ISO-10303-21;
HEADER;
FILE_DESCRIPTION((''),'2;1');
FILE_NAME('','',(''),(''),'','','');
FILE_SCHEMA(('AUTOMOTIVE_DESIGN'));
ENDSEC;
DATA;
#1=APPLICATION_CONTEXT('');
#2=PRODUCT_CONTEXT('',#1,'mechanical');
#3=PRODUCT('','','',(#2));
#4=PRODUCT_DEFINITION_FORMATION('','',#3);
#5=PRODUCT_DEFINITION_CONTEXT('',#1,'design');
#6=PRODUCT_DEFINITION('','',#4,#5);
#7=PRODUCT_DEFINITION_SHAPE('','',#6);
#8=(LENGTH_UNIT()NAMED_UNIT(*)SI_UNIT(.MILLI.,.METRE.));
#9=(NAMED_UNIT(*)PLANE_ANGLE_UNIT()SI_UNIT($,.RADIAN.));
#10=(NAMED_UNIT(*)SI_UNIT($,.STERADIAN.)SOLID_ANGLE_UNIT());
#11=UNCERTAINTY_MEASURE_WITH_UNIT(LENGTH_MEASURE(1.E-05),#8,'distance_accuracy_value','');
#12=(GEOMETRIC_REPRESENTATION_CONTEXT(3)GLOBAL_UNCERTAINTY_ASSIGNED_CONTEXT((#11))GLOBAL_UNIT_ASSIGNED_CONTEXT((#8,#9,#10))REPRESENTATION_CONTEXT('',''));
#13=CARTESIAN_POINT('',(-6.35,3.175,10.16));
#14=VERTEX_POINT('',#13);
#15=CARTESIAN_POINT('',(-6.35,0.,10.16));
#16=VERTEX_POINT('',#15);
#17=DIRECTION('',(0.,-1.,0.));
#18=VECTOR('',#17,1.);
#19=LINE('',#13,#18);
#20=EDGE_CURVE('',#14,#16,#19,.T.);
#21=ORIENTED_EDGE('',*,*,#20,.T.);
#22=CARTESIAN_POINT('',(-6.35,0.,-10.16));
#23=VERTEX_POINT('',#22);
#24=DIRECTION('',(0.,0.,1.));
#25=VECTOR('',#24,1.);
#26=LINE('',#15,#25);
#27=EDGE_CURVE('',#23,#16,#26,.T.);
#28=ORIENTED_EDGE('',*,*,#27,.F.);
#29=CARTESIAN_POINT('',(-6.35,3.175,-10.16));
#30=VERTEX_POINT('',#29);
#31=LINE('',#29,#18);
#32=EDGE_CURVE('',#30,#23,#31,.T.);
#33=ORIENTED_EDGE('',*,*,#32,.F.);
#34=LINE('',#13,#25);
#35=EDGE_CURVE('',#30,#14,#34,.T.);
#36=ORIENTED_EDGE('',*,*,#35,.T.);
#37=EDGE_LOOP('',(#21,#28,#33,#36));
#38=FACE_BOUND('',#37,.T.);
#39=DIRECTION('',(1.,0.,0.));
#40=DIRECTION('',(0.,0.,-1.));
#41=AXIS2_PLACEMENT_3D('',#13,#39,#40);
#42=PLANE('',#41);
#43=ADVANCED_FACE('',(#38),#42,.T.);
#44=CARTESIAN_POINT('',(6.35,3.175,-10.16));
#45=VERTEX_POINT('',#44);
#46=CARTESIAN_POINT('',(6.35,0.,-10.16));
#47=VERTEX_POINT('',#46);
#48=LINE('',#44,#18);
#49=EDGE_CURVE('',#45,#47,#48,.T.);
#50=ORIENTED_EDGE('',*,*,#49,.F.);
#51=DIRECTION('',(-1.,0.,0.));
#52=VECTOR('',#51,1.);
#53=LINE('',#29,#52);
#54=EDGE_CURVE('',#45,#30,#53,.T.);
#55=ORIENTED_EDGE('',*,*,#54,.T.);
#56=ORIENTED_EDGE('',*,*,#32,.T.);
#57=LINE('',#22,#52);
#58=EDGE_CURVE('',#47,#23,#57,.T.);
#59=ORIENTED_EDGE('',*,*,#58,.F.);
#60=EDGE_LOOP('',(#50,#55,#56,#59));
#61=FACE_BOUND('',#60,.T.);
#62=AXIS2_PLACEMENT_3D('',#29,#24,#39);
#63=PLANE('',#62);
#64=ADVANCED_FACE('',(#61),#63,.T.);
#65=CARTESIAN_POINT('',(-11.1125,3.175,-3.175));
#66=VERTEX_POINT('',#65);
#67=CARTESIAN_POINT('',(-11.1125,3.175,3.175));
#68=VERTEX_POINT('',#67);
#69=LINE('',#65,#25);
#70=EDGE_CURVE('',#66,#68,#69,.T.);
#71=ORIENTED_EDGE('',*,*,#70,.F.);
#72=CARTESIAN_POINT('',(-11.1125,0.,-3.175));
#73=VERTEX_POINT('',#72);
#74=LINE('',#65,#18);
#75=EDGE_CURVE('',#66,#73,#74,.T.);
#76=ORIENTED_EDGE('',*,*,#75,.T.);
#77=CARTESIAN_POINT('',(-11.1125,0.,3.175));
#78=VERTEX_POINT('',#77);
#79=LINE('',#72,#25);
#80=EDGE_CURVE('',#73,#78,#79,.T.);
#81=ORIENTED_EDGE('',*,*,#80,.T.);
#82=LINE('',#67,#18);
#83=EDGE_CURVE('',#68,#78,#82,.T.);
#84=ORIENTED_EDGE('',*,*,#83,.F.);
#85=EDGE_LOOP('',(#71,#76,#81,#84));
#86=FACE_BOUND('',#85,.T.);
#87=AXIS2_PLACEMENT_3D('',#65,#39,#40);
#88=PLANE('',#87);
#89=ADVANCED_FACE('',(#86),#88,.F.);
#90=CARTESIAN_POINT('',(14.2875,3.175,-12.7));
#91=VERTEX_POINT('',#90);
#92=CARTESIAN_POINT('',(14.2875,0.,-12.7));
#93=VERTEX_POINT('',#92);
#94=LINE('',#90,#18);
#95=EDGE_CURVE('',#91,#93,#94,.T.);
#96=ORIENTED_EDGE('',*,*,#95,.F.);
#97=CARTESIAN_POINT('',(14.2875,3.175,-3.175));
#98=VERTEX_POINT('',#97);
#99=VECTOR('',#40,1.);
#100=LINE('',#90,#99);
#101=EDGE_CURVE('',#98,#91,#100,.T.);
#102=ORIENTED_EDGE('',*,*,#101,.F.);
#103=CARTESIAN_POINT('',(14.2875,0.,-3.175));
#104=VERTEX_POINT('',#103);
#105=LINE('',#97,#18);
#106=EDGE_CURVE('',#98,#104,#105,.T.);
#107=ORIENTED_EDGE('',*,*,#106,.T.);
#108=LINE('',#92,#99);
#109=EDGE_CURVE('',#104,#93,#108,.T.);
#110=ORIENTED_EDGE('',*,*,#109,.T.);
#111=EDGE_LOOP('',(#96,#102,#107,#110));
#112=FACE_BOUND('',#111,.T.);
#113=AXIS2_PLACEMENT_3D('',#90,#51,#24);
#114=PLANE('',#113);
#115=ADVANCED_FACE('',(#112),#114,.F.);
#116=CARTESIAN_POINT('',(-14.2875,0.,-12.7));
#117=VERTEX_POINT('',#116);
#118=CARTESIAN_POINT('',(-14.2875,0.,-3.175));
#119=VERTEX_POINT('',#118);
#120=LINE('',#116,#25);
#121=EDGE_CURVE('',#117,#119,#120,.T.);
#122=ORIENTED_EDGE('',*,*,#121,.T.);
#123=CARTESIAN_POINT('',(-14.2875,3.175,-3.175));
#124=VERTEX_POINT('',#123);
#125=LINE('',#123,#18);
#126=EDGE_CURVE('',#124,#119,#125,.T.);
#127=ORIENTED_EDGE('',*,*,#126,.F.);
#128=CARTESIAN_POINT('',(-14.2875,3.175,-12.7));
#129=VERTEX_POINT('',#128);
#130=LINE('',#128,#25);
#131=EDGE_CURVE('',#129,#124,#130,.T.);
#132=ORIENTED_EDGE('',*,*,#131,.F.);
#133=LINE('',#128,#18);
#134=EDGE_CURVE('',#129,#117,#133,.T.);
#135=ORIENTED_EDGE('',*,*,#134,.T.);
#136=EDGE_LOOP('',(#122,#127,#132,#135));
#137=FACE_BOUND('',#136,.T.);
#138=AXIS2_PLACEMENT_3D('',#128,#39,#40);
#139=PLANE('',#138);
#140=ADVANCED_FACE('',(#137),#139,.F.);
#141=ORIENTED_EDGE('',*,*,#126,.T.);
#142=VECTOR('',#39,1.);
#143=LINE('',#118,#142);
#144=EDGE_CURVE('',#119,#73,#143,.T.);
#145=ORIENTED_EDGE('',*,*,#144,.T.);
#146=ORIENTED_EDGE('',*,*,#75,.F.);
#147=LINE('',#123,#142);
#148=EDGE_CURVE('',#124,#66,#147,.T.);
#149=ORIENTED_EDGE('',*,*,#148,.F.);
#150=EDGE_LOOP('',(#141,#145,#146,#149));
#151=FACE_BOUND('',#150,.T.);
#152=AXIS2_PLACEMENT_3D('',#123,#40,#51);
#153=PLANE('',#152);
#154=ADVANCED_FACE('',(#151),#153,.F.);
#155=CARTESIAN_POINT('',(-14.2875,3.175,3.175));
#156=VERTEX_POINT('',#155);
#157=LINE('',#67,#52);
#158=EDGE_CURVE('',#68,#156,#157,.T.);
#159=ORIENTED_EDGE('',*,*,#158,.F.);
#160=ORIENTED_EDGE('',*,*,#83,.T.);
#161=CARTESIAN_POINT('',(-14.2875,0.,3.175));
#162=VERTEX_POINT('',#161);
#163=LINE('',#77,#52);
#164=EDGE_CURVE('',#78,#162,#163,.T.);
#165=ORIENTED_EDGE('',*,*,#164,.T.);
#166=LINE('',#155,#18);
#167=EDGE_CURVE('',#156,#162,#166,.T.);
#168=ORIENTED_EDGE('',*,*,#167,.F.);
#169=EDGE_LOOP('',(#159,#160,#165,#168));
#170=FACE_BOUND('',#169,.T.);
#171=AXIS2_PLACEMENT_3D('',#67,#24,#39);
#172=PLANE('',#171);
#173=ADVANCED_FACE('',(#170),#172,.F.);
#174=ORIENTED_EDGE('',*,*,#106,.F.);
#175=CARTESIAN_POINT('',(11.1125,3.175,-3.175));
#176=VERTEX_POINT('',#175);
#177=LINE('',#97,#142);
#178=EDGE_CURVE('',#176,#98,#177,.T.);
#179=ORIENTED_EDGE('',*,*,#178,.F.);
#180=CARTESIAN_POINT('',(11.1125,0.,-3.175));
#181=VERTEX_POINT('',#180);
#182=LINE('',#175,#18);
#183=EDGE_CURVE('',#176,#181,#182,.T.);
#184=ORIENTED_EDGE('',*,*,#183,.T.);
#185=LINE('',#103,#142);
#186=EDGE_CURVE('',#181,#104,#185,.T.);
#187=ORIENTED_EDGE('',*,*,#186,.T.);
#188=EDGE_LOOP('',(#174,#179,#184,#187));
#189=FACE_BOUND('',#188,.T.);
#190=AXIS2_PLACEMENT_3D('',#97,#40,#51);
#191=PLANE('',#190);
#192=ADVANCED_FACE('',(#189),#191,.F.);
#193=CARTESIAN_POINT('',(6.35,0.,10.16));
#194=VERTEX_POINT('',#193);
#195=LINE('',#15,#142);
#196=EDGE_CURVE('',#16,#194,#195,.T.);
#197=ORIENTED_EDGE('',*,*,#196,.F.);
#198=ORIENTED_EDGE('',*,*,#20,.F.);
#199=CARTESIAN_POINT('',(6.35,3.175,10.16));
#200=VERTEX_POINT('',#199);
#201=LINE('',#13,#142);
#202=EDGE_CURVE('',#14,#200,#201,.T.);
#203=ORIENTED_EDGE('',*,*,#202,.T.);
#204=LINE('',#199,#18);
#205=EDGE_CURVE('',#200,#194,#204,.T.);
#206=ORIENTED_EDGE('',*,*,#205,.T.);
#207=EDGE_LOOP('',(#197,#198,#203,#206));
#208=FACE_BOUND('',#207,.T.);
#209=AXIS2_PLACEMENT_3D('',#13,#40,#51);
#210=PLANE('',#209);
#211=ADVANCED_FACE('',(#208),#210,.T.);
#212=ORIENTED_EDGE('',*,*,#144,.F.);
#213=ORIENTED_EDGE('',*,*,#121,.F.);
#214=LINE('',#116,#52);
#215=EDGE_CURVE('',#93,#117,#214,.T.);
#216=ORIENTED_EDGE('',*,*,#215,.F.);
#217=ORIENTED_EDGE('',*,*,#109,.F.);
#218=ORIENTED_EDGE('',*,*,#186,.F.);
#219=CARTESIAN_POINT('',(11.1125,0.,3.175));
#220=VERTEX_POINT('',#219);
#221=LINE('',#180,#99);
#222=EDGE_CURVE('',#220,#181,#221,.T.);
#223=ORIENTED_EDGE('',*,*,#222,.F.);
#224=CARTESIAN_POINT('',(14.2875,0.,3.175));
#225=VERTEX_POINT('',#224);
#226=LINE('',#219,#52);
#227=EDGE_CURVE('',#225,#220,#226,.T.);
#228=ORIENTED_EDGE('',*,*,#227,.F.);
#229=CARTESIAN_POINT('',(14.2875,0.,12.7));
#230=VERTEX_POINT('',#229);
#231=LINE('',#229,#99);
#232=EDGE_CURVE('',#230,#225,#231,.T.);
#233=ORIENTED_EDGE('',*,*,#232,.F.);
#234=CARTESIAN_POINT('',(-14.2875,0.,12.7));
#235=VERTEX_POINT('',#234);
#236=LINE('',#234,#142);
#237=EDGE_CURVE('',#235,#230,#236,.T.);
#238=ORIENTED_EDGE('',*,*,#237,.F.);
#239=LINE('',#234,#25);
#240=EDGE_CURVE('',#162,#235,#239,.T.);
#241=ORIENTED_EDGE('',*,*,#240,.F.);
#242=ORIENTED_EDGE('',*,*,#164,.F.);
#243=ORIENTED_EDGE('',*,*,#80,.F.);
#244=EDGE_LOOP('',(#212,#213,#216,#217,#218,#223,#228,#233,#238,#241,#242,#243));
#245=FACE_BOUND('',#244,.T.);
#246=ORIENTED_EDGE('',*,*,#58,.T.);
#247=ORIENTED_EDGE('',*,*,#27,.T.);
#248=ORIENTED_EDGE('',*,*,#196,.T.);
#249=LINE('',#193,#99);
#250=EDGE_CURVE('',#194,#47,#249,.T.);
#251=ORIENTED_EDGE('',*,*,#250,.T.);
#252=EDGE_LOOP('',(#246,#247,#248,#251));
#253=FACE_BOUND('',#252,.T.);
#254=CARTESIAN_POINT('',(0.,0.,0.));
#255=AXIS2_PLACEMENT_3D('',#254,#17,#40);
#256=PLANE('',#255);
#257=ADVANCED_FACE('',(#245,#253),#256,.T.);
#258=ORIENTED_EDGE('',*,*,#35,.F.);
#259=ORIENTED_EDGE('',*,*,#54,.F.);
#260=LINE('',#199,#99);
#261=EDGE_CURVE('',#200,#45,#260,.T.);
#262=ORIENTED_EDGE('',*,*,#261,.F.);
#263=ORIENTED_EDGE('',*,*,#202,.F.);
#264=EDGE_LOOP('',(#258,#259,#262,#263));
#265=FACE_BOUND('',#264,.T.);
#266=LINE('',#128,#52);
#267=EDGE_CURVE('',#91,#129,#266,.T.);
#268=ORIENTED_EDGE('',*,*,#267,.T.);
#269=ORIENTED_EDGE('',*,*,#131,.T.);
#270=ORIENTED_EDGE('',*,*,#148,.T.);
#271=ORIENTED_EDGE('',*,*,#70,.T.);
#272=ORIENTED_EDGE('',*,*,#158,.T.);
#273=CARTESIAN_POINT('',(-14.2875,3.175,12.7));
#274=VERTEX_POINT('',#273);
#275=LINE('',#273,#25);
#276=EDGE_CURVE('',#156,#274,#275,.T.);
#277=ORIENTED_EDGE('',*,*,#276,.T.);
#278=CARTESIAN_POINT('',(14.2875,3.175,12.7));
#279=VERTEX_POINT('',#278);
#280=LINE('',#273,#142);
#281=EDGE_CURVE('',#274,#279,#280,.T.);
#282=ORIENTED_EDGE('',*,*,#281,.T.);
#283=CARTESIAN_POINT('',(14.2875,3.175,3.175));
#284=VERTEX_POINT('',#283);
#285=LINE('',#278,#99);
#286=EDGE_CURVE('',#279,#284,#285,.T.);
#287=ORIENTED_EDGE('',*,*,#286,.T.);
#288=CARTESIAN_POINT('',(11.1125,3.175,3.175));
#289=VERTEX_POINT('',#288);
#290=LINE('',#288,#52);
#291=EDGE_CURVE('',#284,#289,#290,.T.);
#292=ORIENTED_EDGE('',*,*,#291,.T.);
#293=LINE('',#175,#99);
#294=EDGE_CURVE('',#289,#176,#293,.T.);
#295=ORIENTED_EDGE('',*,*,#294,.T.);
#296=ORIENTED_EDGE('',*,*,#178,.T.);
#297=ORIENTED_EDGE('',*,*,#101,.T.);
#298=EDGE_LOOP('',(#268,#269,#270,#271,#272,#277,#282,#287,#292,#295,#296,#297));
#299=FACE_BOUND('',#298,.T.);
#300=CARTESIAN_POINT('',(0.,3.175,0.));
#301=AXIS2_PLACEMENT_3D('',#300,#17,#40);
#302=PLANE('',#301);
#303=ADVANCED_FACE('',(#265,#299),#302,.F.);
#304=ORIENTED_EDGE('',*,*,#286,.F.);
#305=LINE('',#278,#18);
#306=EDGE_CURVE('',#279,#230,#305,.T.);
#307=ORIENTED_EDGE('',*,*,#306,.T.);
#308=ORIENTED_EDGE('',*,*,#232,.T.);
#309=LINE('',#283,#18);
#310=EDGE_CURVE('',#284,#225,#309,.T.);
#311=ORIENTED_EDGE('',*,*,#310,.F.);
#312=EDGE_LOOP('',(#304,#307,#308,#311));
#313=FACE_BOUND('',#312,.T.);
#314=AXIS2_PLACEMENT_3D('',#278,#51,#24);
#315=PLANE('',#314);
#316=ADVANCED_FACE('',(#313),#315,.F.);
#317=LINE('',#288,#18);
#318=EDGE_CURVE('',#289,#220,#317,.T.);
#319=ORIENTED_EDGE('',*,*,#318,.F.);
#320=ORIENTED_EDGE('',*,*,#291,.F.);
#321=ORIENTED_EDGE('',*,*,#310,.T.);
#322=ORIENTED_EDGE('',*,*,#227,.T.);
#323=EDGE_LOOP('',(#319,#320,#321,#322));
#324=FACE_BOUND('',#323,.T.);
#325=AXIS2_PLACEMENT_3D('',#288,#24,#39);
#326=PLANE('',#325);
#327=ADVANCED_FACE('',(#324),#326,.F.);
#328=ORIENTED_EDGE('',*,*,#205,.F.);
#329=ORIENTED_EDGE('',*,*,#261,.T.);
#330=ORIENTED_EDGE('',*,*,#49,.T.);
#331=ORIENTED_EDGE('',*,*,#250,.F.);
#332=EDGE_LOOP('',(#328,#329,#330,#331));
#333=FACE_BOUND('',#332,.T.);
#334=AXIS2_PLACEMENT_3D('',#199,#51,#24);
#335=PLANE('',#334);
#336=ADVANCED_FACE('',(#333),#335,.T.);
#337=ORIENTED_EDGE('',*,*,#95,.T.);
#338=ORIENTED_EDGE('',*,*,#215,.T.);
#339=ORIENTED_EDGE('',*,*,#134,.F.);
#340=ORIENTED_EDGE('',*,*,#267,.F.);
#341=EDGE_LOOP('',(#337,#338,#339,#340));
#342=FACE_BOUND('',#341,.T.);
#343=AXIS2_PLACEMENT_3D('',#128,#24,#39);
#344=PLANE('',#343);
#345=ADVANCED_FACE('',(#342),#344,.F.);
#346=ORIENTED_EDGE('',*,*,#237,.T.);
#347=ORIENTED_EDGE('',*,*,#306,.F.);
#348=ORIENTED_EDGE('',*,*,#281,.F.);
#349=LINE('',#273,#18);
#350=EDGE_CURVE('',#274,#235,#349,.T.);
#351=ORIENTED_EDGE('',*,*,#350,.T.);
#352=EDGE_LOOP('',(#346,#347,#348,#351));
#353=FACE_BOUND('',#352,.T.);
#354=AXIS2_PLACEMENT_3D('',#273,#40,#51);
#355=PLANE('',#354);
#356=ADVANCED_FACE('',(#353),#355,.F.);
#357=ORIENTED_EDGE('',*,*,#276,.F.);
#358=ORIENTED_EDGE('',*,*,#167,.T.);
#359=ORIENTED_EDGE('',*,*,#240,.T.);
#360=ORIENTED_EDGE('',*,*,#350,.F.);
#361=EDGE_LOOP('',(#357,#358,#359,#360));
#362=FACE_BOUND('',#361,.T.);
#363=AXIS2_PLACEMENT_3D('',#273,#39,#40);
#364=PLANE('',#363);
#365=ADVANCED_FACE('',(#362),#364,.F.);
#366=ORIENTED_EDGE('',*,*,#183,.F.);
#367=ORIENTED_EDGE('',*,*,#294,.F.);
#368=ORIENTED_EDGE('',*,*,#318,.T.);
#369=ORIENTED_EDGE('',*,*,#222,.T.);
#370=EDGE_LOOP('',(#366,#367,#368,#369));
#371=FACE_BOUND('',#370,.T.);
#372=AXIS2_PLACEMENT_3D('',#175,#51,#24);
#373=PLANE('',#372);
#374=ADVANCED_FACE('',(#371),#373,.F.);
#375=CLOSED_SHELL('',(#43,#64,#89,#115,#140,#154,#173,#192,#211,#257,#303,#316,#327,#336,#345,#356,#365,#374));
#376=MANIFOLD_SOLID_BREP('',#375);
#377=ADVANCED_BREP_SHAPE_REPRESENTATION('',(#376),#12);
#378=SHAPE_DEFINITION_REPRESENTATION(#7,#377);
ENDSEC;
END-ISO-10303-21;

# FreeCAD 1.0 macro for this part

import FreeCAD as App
import Part
import Sketcher
Q = App.Units.Quantity

doc = App.newDocument("Part")
params = doc.addObject("Spreadsheet::Sheet", "Params")
for row, (alias, value) in enumerate([
    ("sketch1_width", "0.5 in"),
    ("sketch1_height", "0.8 in"),
    ("sketch1_height2", "0.25 in"),
    ("sketch1_width2", "0.125 in"),
    ("pad1_length", "0.125 in"),
], start=1):
    params.set(f"A{row}", alias)
    params.set(f"B{row}", "=" + value)
    params.setAlias(f"B{row}", alias)

body = doc.addObject("PartDesign::Body", "Body")

# Sketch on XZ plane
sketch1 = body.newObject("Sketcher::SketchObject", "Sketch")
sketch1.AttachmentSupport = (doc.getObject("XZ_Plane"), [""])
sketch1.MapMode = "FlatFace"
sketch1.addGeometry([
    Part.LineSegment(App.Vector(-14.2875, -3.175, 0), App.Vector(-11.1125, -3.175, 0)),  # 0
    Part.LineSegment(App.Vector(-11.1125, -3.175, 0), App.Vector(-11.1125, 3.175, 0)),  # 1
    Part.LineSegment(App.Vector(-11.1125, 3.175, 0), App.Vector(-14.2875, 3.175, 0)),  # 2
    Part.LineSegment(App.Vector(-14.2875, 3.175, 0), App.Vector(-14.2875, 12.7, 0)),  # 3
    Part.LineSegment(App.Vector(-14.2875, 12.7, 0), App.Vector(14.2875, 12.7, 0)),  # 4
    Part.LineSegment(App.Vector(14.2875, 12.7, 0), App.Vector(14.2875, 3.175, 0)),  # 5
    Part.LineSegment(App.Vector(14.2875, 3.175, 0), App.Vector(11.1125, 3.175, 0)),  # 6
    Part.LineSegment(App.Vector(11.1125, 3.175, 0), App.Vector(11.1125, -3.175, 0)),  # 7
    Part.LineSegment(App.Vector(11.1125, -3.175, 0), App.Vector(14.2875, -3.175, 0)),  # 8
    Part.LineSegment(App.Vector(14.2875, -3.175, 0), App.Vector(14.2875, -12.7, 0)),  # 9
    Part.LineSegment(App.Vector(14.2875, -12.7, 0), App.Vector(-14.2875, -12.7, 0)),  # 10
    Part.LineSegment(App.Vector(-14.2875, -12.7, 0), App.Vector(-14.2875, -3.175, 0)),  # 11
    Part.LineSegment(App.Vector(6.35, 10.16, 0), App.Vector(-6.35, 10.16, 0)),  # 12
    Part.LineSegment(App.Vector(-6.35, 10.16, 0), App.Vector(-6.35, -10.16, 0)),  # 13
    Part.LineSegment(App.Vector(-6.35, -10.16, 0), App.Vector(6.35, -10.16, 0)),  # 14
    Part.LineSegment(App.Vector(6.35, -10.16, 0), App.Vector(6.35, 10.16, 0)),  # 15
], False)
sketch1.addConstraint([
    Sketcher.Constraint("Coincident", 0, 2, 1, 1),
    Sketcher.Constraint("Coincident", 1, 2, 2, 1),
    Sketcher.Constraint("Coincident", 2, 2, 3, 1),
    Sketcher.Constraint("Coincident", 3, 2, 4, 1),
    Sketcher.Constraint("Coincident", 4, 2, 5, 1),
    Sketcher.Constraint("Coincident", 5, 2, 6, 1),
    Sketcher.Constraint("Coincident", 6, 2, 7, 1),
    Sketcher.Constraint("Coincident", 7, 2, 8, 1),
    Sketcher.Constraint("Coincident", 8, 2, 9, 1),
    Sketcher.Constraint("Coincident", 9, 2, 10, 1),
    Sketcher.Constraint("Coincident", 10, 2, 11, 1),
    Sketcher.Constraint("Coincident", 11, 2, 0, 1),
    Sketcher.Constraint("Coincident", 12, 2, 13, 1),
    Sketcher.Constraint("Coincident", 13, 2, 14, 1),
    Sketcher.Constraint("Coincident", 14, 2, 15, 1),
    Sketcher.Constraint("Coincident", 15, 2, 12, 1),
    Sketcher.Constraint("Horizontal", 0),
    Sketcher.Constraint("Vertical", 1),
    Sketcher.Constraint("Horizontal", 2),
    Sketcher.Constraint("Vertical", 3),
    Sketcher.Constraint("Horizontal", 4),
    Sketcher.Constraint("Vertical", 5),
    Sketcher.Constraint("Horizontal", 6),
    Sketcher.Constraint("Vertical", 7),
    Sketcher.Constraint("Horizontal", 8),
    Sketcher.Constraint("Vertical", 9),
    Sketcher.Constraint("Horizontal", 10),
    Sketcher.Constraint("Vertical", 11),
    Sketcher.Constraint("Horizontal", 12),
    Sketcher.Constraint("Vertical", 13),
    Sketcher.Constraint("Horizontal", 14),
    Sketcher.Constraint("Vertical", 15),
    Sketcher.Constraint("Symmetric", 0, 2, 6, 2, -1, 1),
    Sketcher.Constraint("Symmetric", 2, 2, 8, 2, -1, 1),
    Sketcher.Constraint("Symmetric", 4, 2, 10, 2, -1, 1),
    Sketcher.Constraint("Symmetric", 12, 2, 14, 2, -1, 1),
    Sketcher.Constraint("Symmetric", 2, 2, 5, 2, -2),
    Sketcher.Constraint("DistanceX", 12, 2, 12, 1, Q("0.5 in")),
    Sketcher.Constraint("DistanceY", 13, 2, 13, 1, Q("0.8 in")),
    Sketcher.Constraint("DistanceX", 1, 2, 4, 2, Q("1 in")),
    Sketcher.Constraint("DistanceY", 9, 2, 4, 2, Q("1 in")),
    Sketcher.Constraint("DistanceY", 1, 1, 1, 2, Q("0.25 in")),
    Sketcher.Constraint("DistanceX", 0, 1, 0, 2, Q("0.125 in")),
])
sketch1.setExpression("Constraints[37]", "Params.sketch1_width")
sketch1.setExpression("Constraints[38]", "Params.sketch1_height")
sketch1.setExpression("Constraints[41]", "Params.sketch1_height2")
sketch1.setExpression("Constraints[42]", "Params.sketch1_width2")
pad1 = body.newObject("PartDesign::Pad", "Pad")
pad1.Profile = sketch1
pad1.setExpression("Length", "Params.pad1_length")
pad1.Reversed = True

doc.recompute()
